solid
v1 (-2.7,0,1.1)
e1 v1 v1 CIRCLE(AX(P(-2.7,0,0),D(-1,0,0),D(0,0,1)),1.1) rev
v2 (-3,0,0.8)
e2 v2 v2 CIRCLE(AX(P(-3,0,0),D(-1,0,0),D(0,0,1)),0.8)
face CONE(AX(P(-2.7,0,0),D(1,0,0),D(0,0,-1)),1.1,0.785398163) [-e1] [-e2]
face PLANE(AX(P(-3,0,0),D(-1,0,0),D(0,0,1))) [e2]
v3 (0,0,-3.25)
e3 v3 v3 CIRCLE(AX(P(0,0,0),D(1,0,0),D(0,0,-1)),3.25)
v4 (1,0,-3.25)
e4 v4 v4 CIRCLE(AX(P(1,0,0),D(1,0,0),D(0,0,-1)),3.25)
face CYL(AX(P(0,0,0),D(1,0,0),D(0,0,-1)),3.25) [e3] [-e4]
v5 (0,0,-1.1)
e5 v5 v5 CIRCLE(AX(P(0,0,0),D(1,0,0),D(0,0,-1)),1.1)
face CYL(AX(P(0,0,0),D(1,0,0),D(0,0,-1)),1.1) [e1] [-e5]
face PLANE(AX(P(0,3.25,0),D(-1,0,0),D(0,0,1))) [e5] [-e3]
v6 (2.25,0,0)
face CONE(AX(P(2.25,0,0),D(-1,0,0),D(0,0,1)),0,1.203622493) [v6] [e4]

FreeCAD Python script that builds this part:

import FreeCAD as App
import Part
import Sketcher
from FreeCAD import Vector
Q = App.Units.Quantity


def edges_at(feature, points):
    """Names of the edges that pass closest to the given points."""
    edges = feature.Shape.Edges
    near = lambda p: min(range(len(edges)), key=lambda i: edges[i].distToShape(Part.Vertex(*p))[0])
    return sorted({f"Edge{near(p) + 1}" for p in points})

doc = App.newDocument("Part")
body = doc.addObject("PartDesign::Body", "Body")

# Sketch on XY plane
sketch1 = body.newObject("Sketcher::SketchObject", "Sketch")
sketch1.AttachmentSupport = (doc.getObject("XY_Plane"), [""])
sketch1.MapMode = "FlatFace"
sketch1.addGeometry(Part.LineSegment(Vector(2.25, 0, 0), Vector(1, 3.25, 0)), False)
sketch1.addGeometry(Part.LineSegment(Vector(1, 3.25, 0), Vector(0, 3.25, 0)), False)
sketch1.addGeometry(Part.LineSegment(Vector(0, 3.25, 0), Vector(0, 1.1, 0)), False)
sketch1.addGeometry(Part.LineSegment(Vector(0, 1.1, 0), Vector(-3, 1.1, 0)), False)
sketch1.addGeometry(Part.LineSegment(Vector(-3, 1.1, 0), Vector(-3, 0, 0)), False)
sketch1.addGeometry(Part.LineSegment(Vector(-3, 0, 0), Vector(2.25, 0, 0)), False)
sketch1.addConstraint(Sketcher.Constraint("Coincident", 0, 2, 1, 1))
sketch1.addConstraint(Sketcher.Constraint("Coincident", 1, 2, 2, 1))
sketch1.addConstraint(Sketcher.Constraint("Coincident", 2, 2, 3, 1))
sketch1.addConstraint(Sketcher.Constraint("Coincident", 3, 2, 4, 1))
sketch1.addConstraint(Sketcher.Constraint("Coincident", 4, 2, 5, 1))
sketch1.addConstraint(Sketcher.Constraint("Coincident", 5, 2, 0, 1))
sketch1.addConstraint(Sketcher.Constraint("Horizontal", 1))
sketch1.addConstraint(Sketcher.Constraint("Vertical", 2))
sketch1.addConstraint(Sketcher.Constraint("Horizontal", 3))
sketch1.addConstraint(Sketcher.Constraint("Vertical", 4))
sketch1.addConstraint(Sketcher.Constraint("Horizontal", 5))
sketch1.addConstraint(Sketcher.Constraint("PointOnObject", 1, 2, -2))
sketch1.addConstraint(Sketcher.Constraint("PointOnObject", 4, 2, -1))
sketch1.addConstraint(Sketcher.Constraint("DistanceX", 1, 2, 1, 1, Q("1 mm")))
sketch1.addConstraint(Sketcher.Constraint("DistanceX", 3, 2, 3, 1, Q("3 mm")))
sketch1.addConstraint(Sketcher.Constraint("DistanceY", 4, 2, 4, 1, Q("1.1 mm")))
sketch1.addConstraint(Sketcher.Constraint("DistanceX", 5, 1, 5, 2, Q("5.25 mm")))
sketch1.addConstraint(Sketcher.Constraint("DistanceY", 2, 2, 2, 1, Q("2.15 mm")))
revolution = body.newObject("PartDesign::Revolution", "Revolution")
revolution.Profile = sketch1
revolution.ReferenceAxis = (sketch1, ["H_Axis"])
revolution.Angle = 360
doc.recompute()

chamfer = body.newObject("PartDesign::Chamfer", "Chamfer")
chamfer.Base = (revolution, edges_at(revolution, [(-3, 0, 1.1)]))
chamfer.Size = 0.3

doc.recompute()
